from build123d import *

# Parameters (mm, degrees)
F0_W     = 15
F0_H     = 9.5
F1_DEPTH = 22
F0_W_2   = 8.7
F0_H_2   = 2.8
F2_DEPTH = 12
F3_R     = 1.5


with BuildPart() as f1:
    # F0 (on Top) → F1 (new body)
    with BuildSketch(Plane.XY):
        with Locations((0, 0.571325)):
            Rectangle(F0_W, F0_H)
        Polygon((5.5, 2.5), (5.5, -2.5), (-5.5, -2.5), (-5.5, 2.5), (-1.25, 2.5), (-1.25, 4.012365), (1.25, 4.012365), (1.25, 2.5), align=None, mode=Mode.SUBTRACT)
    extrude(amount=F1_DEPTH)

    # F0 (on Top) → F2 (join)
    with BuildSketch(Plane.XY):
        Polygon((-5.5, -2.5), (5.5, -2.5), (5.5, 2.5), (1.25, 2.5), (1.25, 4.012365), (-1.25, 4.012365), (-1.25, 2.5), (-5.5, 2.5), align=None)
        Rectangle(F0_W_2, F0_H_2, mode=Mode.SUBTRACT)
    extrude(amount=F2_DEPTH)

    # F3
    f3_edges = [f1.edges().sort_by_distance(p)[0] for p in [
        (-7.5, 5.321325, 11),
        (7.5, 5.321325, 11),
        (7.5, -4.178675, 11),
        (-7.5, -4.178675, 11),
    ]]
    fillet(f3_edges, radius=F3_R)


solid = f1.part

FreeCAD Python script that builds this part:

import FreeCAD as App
import Part
import Sketcher
from FreeCAD import Vector
Q = App.Units.Quantity


def edges_at(feature, points):
    """Names of the edges that pass closest to the given points."""
    edges = feature.Shape.Edges
    near = lambda p: min(range(len(edges)), key=lambda i: edges[i].distToShape(Part.Vertex(*p))[0])
    return sorted({f"Edge{near(p) + 1}" for p in points})


def add_polygon(sketch, points):
    """Adds a closed chain of lines whose ends are joined by coincident constraints."""
    first, n = sketch.GeometryCount, len(points)
    for a, b in zip(points, points[1:] + points[:1]):
        sketch.addGeometry(Part.LineSegment(App.Vector(*a, 0), App.Vector(*b, 0)), False)
    for i in range(n):
        sketch.addConstraint(Sketcher.Constraint("Coincident", first + i, 2, first + (i + 1) % n, 1))

doc = App.newDocument("Part")
params = doc.addObject("Spreadsheet::Sheet", "Params")
for row, (alias, value) in enumerate([
    ("sketch1_width", "15 mm"),
    ("sketch1_width2", "11 mm"),
    ("sketch1_height", "5 mm"),
    ("sketch1_width3", "2.5 mm"),
    ("sketch1_height2", "9.5 mm"),
    ("pad1_length", "22 mm"),
    ("sketch2_width", "11 mm"),
    ("sketch2_height", "5 mm"),
    ("sketch2_width2", "2.5 mm"),
    ("sketch2_width3", "8.7 mm"),
    ("sketch2_height2", "2.8 mm"),
    ("pad2_length", "12 mm"),
    ("fillet_radius", "1.5 mm"),
], start=1):
    params.set(f"A{row}", alias)
    params.set(f"B{row}", "=" + value)
    params.setAlias(f"B{row}", alias)

body = doc.addObject("PartDesign::Body", "Body")

# Sketch on XY plane
sketch1 = doc.addObject("Sketcher::SketchObject", "Sketch")
body.addObject(sketch1)
sketch1.AttachmentSupport = (doc.XY_Plane, [""])
sketch1.MapMode = "FlatFace"
add_polygon(sketch1, [(-7.5, 5.3), (-7.5, -4.2), (7.5, -4.2), (7.5, 5.3)])  # lines 0-3
add_polygon(sketch1, [(1.2, 2.5), (5.5, 2.5), (5.5, -2.5), (-5.5, -2.5), (-5.5, 2.5), (-1.2, 2.5), (-1.2, 4), (1.2, 4)])  # lines 4-11
sketch1.addConstraint([
    Sketcher.Constraint("Vertical", 0),
    Sketcher.Constraint("Horizontal", 1),
    Sketcher.Constraint("Vertical", 2),
    Sketcher.Constraint("Horizontal", 3),
    Sketcher.Constraint("Horizontal", 4),
    Sketcher.Constraint("Vertical", 5),
    Sketcher.Constraint("Horizontal", 6),
    Sketcher.Constraint("Vertical", 7),
    Sketcher.Constraint("Horizontal", 8),
    Sketcher.Constraint("Vertical", 9),
    Sketcher.Constraint("Horizontal", 10),
    Sketcher.Constraint("Vertical", 11),
    Sketcher.Constraint("Symmetric", 4, 2, 6, 2, -1, 1),
    Sketcher.Constraint("Symmetric", 8, 2, 11, 2, -2),
    Sketcher.Constraint("DistanceX", 1, 1, 1, 2, Q("15 mm")),
    Sketcher.Constraint("DistanceX", 6, 2, 6, 1, Q("11 mm")),
    Sketcher.Constraint("DistanceY", 5, 2, 5, 1, Q("5 mm")),
    Sketcher.Constraint("DistanceX", 10, 1, 10, 2, Q("2.5 mm")),
    Sketcher.Constraint("DistanceY", 0, 2, 0, 1, Q("9.5 mm")),
    Sketcher.Constraint("DistanceX", 4, 2, 2, 2, Q("2 mm")),
    Sketcher.Constraint("DistanceY", 9, 1, 9, 2, Q("1.512365 mm")),
    Sketcher.Constraint("DistanceY", 9, 2, 3, 2, Q("1.30896 mm")),
])
sketch1.setExpression("Constraints[26]", "Params.sketch1_width")
sketch1.setExpression("Constraints[27]", "Params.sketch1_width2")
sketch1.setExpression("Constraints[28]", "Params.sketch1_height")
sketch1.setExpression("Constraints[29]", "Params.sketch1_width3")
sketch1.setExpression("Constraints[30]", "Params.sketch1_height2")
pad1 = doc.addObject("PartDesign::Pad", "Pad")
body.addObject(pad1)
pad1.Profile = sketch1
pad1.setExpression("Length", "Params.pad1_length")

# Sketch on XY plane
sketch2 = doc.addObject("Sketcher::SketchObject", "Sketch001")
body.addObject(sketch2)
sketch2.AttachmentSupport = (doc.XY_Plane, [""])
sketch2.MapMode = "FlatFace"
add_polygon(sketch2, [(-5.5, -2.5), (5.5, -2.5), (5.5, 2.5), (1.2, 2.5), (1.2, 4), (-1.2, 4), (-1.2, 2.5), (-5.5, 2.5)])  # lines 0-7
add_polygon(sketch2, [(4.3, -1.4), (-4.3, -1.4), (-4.3, 1.4), (4.3, 1.4)])  # lines 8-11
sketch2.addConstraint([
    Sketcher.Constraint("Horizontal", 0),
    Sketcher.Constraint("Vertical", 1),
    Sketcher.Constraint("Horizontal", 2),
    Sketcher.Constraint("Vertical", 3),
    Sketcher.Constraint("Horizontal", 4),
    Sketcher.Constraint("Vertical", 5),
    Sketcher.Constraint("Horizontal", 6),
    Sketcher.Constraint("Vertical", 7),
    Sketcher.Constraint("Horizontal", 8),
    Sketcher.Constraint("Vertical", 9),
    Sketcher.Constraint("Horizontal", 10),
    Sketcher.Constraint("Vertical", 11),
    Sketcher.Constraint("Symmetric", 0, 2, 6, 2, -1, 1),
    Sketcher.Constraint("Symmetric", 8, 2, 10, 2, -1, 1),
    Sketcher.Constraint("Symmetric", 2, 2, 5, 2, -2),
    Sketcher.Constraint("DistanceX", 0, 1, 0, 2, Q("11 mm")),
    Sketcher.Constraint("DistanceY", 1, 1, 1, 2, Q("5 mm")),
    Sketcher.Constraint("DistanceX", 4, 2, 4, 1, Q("2.5 mm")),
    Sketcher.Constraint("DistanceX", 8, 2, 8, 1, Q("8.7 mm")),
    Sketcher.Constraint("DistanceY", 9, 1, 9, 2, Q("2.8 mm")),
    Sketcher.Constraint("DistanceY", 3, 1, 3, 2, Q("1.512365 mm")),
])
sketch2.setExpression("Constraints[27]", "Params.sketch2_width")
sketch2.setExpression("Constraints[28]", "Params.sketch2_height")
sketch2.setExpression("Constraints[29]", "Params.sketch2_width2")
sketch2.setExpression("Constraints[30]", "Params.sketch2_width3")
sketch2.setExpression("Constraints[31]", "Params.sketch2_height2")
pad2 = doc.addObject("PartDesign::Pad", "Pad001")
body.addObject(pad2)
pad2.Profile = sketch2
pad2.setExpression("Length", "Params.pad2_length")
doc.recompute()

fillet = doc.addObject("PartDesign::Fillet", "Fillet")
body.addObject(fillet)
fillet.Base = (pad2, edges_at(pad2, [
    (-7.5, 5.321, 11),
    (7.5, 5.321, 11),
    (7.5, -4.179, 11),
    (-7.5, -4.179, 11),
]))
fillet.setExpression("Radius", "Params.fillet_radius")

doc.recompute()
